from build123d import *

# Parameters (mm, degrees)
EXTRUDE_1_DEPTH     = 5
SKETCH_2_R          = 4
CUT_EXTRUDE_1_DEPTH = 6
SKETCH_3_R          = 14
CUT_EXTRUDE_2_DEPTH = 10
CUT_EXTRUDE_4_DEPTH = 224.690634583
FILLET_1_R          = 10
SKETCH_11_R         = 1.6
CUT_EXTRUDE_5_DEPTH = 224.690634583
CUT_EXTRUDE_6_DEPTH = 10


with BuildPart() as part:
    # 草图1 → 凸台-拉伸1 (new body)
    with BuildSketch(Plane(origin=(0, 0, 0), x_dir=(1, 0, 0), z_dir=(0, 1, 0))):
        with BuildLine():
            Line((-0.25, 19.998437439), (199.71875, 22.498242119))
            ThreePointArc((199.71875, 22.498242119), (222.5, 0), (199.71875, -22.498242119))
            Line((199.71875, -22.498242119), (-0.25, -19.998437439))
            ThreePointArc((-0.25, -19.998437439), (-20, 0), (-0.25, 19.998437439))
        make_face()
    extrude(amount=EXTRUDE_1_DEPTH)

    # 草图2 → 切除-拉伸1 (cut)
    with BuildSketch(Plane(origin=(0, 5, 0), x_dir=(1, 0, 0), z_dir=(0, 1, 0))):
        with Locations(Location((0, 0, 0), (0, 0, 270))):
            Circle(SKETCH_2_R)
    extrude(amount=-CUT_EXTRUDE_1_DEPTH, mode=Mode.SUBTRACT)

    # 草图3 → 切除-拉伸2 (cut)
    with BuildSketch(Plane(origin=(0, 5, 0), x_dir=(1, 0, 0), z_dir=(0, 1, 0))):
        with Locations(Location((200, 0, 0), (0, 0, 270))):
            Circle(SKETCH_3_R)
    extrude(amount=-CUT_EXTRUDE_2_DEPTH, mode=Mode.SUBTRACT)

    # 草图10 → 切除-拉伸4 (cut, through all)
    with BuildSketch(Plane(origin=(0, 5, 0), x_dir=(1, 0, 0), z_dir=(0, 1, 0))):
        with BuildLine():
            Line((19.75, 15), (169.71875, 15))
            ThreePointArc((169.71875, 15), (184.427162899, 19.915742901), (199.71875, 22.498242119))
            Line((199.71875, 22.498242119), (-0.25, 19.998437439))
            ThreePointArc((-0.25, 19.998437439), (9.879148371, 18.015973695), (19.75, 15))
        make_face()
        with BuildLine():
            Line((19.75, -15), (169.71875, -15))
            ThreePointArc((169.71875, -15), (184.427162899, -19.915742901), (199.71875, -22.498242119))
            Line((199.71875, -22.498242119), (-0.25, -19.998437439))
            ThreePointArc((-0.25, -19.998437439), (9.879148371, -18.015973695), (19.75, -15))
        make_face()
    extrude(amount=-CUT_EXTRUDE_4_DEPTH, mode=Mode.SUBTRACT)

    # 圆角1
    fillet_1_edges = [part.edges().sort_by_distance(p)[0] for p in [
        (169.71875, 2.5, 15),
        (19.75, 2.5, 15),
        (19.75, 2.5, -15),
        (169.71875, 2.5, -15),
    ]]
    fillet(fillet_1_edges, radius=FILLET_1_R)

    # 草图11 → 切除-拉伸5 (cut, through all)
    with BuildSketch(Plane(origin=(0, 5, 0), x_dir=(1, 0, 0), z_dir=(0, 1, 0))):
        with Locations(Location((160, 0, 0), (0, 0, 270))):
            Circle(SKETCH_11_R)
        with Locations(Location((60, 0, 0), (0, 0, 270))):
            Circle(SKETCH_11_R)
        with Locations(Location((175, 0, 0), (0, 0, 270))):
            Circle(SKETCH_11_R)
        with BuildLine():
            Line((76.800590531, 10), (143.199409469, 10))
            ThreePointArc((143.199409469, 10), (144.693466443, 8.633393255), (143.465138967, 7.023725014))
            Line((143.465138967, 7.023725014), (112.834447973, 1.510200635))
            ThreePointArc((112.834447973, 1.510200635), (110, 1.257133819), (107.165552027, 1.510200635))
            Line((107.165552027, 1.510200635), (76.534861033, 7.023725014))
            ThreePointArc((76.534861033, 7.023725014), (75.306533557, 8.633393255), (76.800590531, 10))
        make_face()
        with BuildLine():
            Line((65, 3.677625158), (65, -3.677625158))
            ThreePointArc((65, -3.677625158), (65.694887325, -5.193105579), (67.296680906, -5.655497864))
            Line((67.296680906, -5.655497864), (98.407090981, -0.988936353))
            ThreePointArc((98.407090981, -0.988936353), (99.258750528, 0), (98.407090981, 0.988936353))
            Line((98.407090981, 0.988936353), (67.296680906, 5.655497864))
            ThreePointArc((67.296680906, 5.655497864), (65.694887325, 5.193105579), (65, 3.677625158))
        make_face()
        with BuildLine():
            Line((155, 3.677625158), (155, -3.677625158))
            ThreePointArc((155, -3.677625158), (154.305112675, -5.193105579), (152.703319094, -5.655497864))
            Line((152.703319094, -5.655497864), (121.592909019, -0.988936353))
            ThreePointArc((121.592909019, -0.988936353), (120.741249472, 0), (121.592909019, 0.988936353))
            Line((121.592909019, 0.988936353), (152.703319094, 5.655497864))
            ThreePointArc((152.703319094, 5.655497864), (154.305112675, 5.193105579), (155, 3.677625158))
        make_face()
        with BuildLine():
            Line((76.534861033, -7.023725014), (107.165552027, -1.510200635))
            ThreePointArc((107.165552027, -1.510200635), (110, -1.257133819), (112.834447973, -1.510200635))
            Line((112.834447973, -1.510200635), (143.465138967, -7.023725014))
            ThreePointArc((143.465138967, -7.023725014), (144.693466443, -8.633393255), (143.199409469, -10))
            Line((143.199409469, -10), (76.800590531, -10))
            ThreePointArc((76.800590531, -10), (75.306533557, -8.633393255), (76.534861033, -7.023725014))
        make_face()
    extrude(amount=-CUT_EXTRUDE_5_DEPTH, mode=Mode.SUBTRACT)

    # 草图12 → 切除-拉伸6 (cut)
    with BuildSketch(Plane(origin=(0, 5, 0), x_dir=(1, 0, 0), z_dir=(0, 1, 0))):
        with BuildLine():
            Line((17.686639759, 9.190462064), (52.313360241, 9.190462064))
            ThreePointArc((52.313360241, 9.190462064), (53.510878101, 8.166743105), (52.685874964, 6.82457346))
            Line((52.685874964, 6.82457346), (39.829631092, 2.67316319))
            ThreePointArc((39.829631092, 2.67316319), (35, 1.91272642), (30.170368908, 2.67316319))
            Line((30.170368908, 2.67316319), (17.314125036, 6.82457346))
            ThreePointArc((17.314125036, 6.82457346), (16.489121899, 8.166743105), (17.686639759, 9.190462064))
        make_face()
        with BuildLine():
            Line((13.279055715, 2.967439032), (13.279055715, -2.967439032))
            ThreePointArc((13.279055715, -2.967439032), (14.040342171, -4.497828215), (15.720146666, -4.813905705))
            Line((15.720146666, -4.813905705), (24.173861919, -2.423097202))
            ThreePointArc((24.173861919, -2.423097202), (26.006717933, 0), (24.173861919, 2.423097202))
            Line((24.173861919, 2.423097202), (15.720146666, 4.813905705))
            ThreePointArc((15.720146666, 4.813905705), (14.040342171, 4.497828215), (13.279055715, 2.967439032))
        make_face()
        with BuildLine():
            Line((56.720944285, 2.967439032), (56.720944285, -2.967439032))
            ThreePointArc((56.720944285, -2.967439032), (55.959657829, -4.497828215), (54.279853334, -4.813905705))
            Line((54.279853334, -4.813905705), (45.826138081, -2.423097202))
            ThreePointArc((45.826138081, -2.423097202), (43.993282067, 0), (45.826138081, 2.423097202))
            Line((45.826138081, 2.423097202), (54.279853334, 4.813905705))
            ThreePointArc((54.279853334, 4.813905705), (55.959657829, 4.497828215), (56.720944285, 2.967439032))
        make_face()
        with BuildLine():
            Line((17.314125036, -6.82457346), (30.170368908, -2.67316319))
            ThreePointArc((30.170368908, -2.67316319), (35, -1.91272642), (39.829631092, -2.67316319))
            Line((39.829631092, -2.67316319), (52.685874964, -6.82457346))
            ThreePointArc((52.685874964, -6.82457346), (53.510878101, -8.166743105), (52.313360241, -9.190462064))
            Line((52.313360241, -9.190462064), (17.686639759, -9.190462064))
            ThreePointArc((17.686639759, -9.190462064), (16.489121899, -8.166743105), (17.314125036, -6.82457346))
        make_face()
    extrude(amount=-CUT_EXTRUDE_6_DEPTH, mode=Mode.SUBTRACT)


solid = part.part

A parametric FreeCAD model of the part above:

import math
import FreeCAD as App
import Part
import Sketcher

V = App.Vector
Q = App.Units.Quantity


def edges_at(feature, points):
    """Names of the edges that pass closest to the given points."""
    edges = feature.Shape.Edges
    near = lambda p: min(range(len(edges)), key=lambda i: edges[i].distToShape(Part.Vertex(*p))[0])
    return sorted({f"Edge{near(p) + 1}" for p in points})

doc = App.newDocument("Part")
body = doc.addObject("PartDesign::Body", "Body")

# Sketch on XZ plane
sketch1 = body.newObject("Sketcher::SketchObject", "Sketch")
sketch1.AttachmentSupport = (doc.getObject("XZ_Plane"), [""])
sketch1.MapMode = "FlatFace"
sketch1.addGeometry([
    Part.LineSegment(V(199.71875, -22.498242, 0), V(-0.25, -19.998437, 0)),
    Part.ArcOfCircle(Part.Circle(V(0, 0, 0), V(0, 0, 1), 20), math.radians(90.716216), math.radians(269.283784)),
    Part.LineSegment(V(-0.25, 19.998437, 0), V(199.71875, 22.498242, 0)),
    Part.ArcOfCircle(Part.Circle(V(200, 0, 0), V(0, 0, 1), 22.5), math.radians(-90.716216), math.radians(90.716216)),
], False)
sketch1.addConstraint([
    Sketcher.Constraint("Tangent", 0, 2, 1, 2),
    Sketcher.Constraint("Tangent", 1, 1, 2, 1),
    Sketcher.Constraint("Tangent", 2, 2, 3, 2),
    Sketcher.Constraint("Tangent", 3, 1, 0, 1),
    Sketcher.Constraint("Coincident", 1, 3, -1, 1),
    Sketcher.Constraint("PointOnObject", 3, 3, -1),
    Sketcher.Constraint("Radius", 1, Q("20 mm")),
    Sketcher.Constraint("Radius", 3, Q("22.5 mm")),
    Sketcher.Constraint("DistanceX", -1, 1, 3, 3, Q("200 mm")),
])
pad1 = body.newObject("PartDesign::Pad", "Pad")
pad1.Profile = sketch1
pad1.Length = 5
pad1.Reversed = True

# Sketch on XZ plane
sketch2 = body.newObject("Sketcher::SketchObject", "Sketch001")
sketch2.AttachmentSupport = (doc.getObject("XZ_Plane"), [""])
sketch2.MapMode = "FlatFace"
sketch2.AttachmentOffset = App.Placement(V(0, 0, -5), App.Rotation())
sketch2.addGeometry(Part.Circle(V(0, 0, 0), V(0, 0, 1), 4), False)
sketch2.addConstraint([
    Sketcher.Constraint("Coincident", 0, 3, -1, 1),
    Sketcher.Constraint("Diameter", 0, Q("8 mm")),
])
pocket1 = body.newObject("PartDesign::Pocket", "Pocket")
pocket1.Profile = sketch2
pocket1.Length = 6
pocket1.Reversed = True

# Sketch on XZ plane
sketch3 = body.newObject("Sketcher::SketchObject", "Sketch002")
sketch3.AttachmentSupport = (doc.getObject("XZ_Plane"), [""])
sketch3.MapMode = "FlatFace"
sketch3.AttachmentOffset = App.Placement(V(0, 0, -5), App.Rotation())
sketch3.addGeometry(Part.Circle(V(200, 0, 0), V(0, 0, 1), 14), False)
sketch3.addConstraint([
    Sketcher.Constraint("PointOnObject", 0, 3, -1),
    Sketcher.Constraint("Diameter", 0, Q("28 mm")),
    Sketcher.Constraint("DistanceX", -1, 1, 0, 3, Q("200 mm")),
])
pocket2 = body.newObject("PartDesign::Pocket", "Pocket001")
pocket2.Profile = sketch3
pocket2.Length = 10
pocket2.Reversed = True

# Sketch on XZ plane
sketch4 = body.newObject("Sketcher::SketchObject", "Sketch003")
sketch4.AttachmentSupport = (doc.getObject("XZ_Plane"), [""])
sketch4.MapMode = "FlatFace"
sketch4.AttachmentOffset = App.Placement(V(0, 0, -5), App.Rotation())
sketch4.addGeometry([
    Part.LineSegment(V(19.75, -15, 0), V(169.71875, -15, 0)),  # 0
    Part.ArcOfCircle(Part.Circle(V(208.675375, 77.099845, 0), V(0, 0, 1), 100), math.radians(-112.927513), math.radians(-95.138654)),  # 1
    Part.LineSegment(V(199.71875, -22.498242, 0), V(-0.25, -19.998437, 0)),  # 2
    Part.ArcOfCircle(Part.Circle(V(-14.36728, 79.000059, 0), V(0, 0, 1), 100), math.radians(-81.884283), math.radians(-70.051656)),  # 3
    Part.LineSegment(V(169.71875, 15, 0), V(19.75, 15, 0)),  # 4
    Part.ArcOfCircle(Part.Circle(V(-14.36728, -79.000059, 0), V(0, 0, 1), 100), math.radians(70.051656), math.radians(81.884283)),  # 5
    Part.LineSegment(V(-0.25, 19.998437, 0), V(199.71875, 22.498242, 0)),  # 6
    Part.ArcOfCircle(Part.Circle(V(208.675375, -77.099845, 0), V(0, 0, 1), 100), math.radians(95.138654), math.radians(112.927513)),  # 7
], False)
sketch4.addConstraint([
    Sketcher.Constraint("Coincident", 0, 2, 1, 1),
    Sketcher.Constraint("Coincident", 1, 2, 2, 1),
    Sketcher.Constraint("Coincident", 2, 2, 3, 1),
    Sketcher.Constraint("Coincident", 3, 2, 0, 1),
    Sketcher.Constraint("Coincident", 4, 2, 5, 1),
    Sketcher.Constraint("Coincident", 5, 2, 6, 1),
    Sketcher.Constraint("Coincident", 6, 2, 7, 1),
    Sketcher.Constraint("Coincident", 7, 2, 4, 1),
    Sketcher.Constraint("Horizontal", 0),
    Sketcher.Constraint("Horizontal", 4),
    Sketcher.Constraint("Equal", 1, 3),
    Sketcher.Constraint("Equal", 3, 5),
    Sketcher.Constraint("Equal", 5, 7),
    Sketcher.Constraint("Symmetric", 3, 3, 5, 3, -1),
    Sketcher.Constraint("Symmetric", 1, 3, 7, 3, -1),
    Sketcher.Constraint("Vertical", 3, 2, 4, 2),
    Sketcher.Constraint("Vertical", 2, 2, 5, 2),
    Sketcher.Constraint("Vertical", 1, 2, 6, 2),
    Sketcher.Constraint("Radius", 1, Q("100 mm")),
    Sketcher.Constraint("DistanceY", 0, 2, -1, 1, Q("15 mm")),
    Sketcher.Constraint("DistanceX", 0, 2, 1, 2, Q("30 mm")),
    Sketcher.Constraint("DistanceX", 2, 2, 3, 2, Q("20 mm")),
    Sketcher.Constraint("DistanceX", 2, 2, -1, 1, Q("0.25 mm")),
    Sketcher.Constraint("DistanceX", 0, 1, 0, 2, Q("149.96875 mm")),
    Sketcher.Constraint("DistanceY", 1, 2, 3, 3, Q("101.498302 mm")),
    Sketcher.Constraint("DistanceX", 3, 3, -1, 1, Q("14.36728 mm")),
])
pocket3 = body.newObject("PartDesign::Pocket", "Pocket002")
pocket3.Profile = sketch4
pocket3.Type = "ThroughAll"
pocket3.Reversed = True
doc.recompute()

fillet = body.newObject("PartDesign::Fillet", "Fillet")
fillet.Base = (pocket3, edges_at(pocket3, [
    (169.719, 2.5, 15),
    (19.75, 2.5, 15),
    (19.75, 2.5, -15),
    (169.719, 2.5, -15),
]))
fillet.Radius = 10

# Sketch on XZ plane
sketch5 = body.newObject("Sketcher::SketchObject", "Sketch004")
sketch5.AttachmentSupport = (doc.getObject("XZ_Plane"), [""])
sketch5.MapMode = "FlatFace"
sketch5.AttachmentOffset = App.Placement(V(0, 0, -5), App.Rotation())
sketch5.addGeometry([
    Part.Circle(V(160, 0, 0), V(0, 0, 1), 1.6),  # 0
    Part.Circle(V(60, 0, 0), V(0, 0, 1), 1.6),  # 1
    Part.Circle(V(175, 0, 0), V(0, 0, 1), 1.6),  # 2
    Part.LineSegment(V(143.199409, -10, 0), V(76.800591, -10, 0)),  # 3
    Part.ArcOfCircle(Part.Circle(V(76.800591, -8.5, 0), V(0, 0, 1), 1.5), math.radians(100.203974), math.radians(270)),  # 4
    Part.LineSegment(V(76.534861, -7.023725, 0), V(107.165552, -1.510201, 0)),  # 5
    Part.ArcOfCircle(Part.Circle(V(110, -17.257134, 0), V(0, 0, 1), 16), math.radians(79.796026), math.radians(100.203974)),  # 6
    Part.LineSegment(V(112.834448, -1.510201, 0), V(143.465139, -7.023725, 0)),  # 7
    Part.ArcOfCircle(Part.Circle(V(143.199409, -8.5, 0), V(0, 0, 1), 1.5), math.radians(-90), math.radians(79.796026)),  # 8
    Part.LineSegment(V(65, -3.677625, 0), V(65, 3.677625, 0)),  # 9
    Part.ArcOfCircle(Part.Circle(V(67, 3.677625, 0), V(0, 0, 1), 2), math.radians(81.469234), math.radians(180)),  # 10
    Part.LineSegment(V(67.296681, 5.655498, 0), V(98.407091, 0.988936, 0)),  # 11
    Part.ArcOfCircle(Part.Circle(V(98.258751, 0, 0), V(0, 0, 1), 1), math.radians(-81.469234), math.radians(81.469234)),  # 12
    Part.LineSegment(V(98.407091, -0.988936, 0), V(67.296681, -5.655498, 0)),  # 13
    Part.ArcOfCircle(Part.Circle(V(67, -3.677625, 0), V(0, 0, 1), 2), math.radians(180), math.radians(278.530766)),  # 14
    Part.LineSegment(V(155, 3.677625, 0), V(155, -3.677625, 0)),  # 15
    Part.ArcOfCircle(Part.Circle(V(153, -3.677625, 0), V(0, 0, 1), 2), math.radians(-98.530766), math.radians(0)),  # 16
    Part.LineSegment(V(152.703319, -5.655498, 0), V(121.592909, -0.988936, 0)),  # 17
    Part.ArcOfCircle(Part.Circle(V(121.741249, 0, 0), V(0, 0, 1), 1), math.radians(98.530766), math.radians(261.469234)),  # 18
    Part.LineSegment(V(121.592909, 0.988936, 0), V(152.703319, 5.655498, 0)),  # 19
    Part.ArcOfCircle(Part.Circle(V(153, 3.677625, 0), V(0, 0, 1), 2), math.radians(0), math.radians(98.530766)),  # 20
    Part.LineSegment(V(107.165552, 1.510201, 0), V(76.534861, 7.023725, 0)),  # 21
    Part.ArcOfCircle(Part.Circle(V(76.800591, 8.5, 0), V(0, 0, 1), 1.5), math.radians(90), math.radians(259.796026)),  # 22
    Part.LineSegment(V(76.800591, 10, 0), V(143.199409, 10, 0)),  # 23
    Part.ArcOfCircle(Part.Circle(V(143.199409, 8.5, 0), V(0, 0, 1), 1.5), math.radians(-79.796026), math.radians(90)),  # 24
    Part.LineSegment(V(143.465139, 7.023725, 0), V(112.834448, 1.510201, 0)),  # 25
    Part.ArcOfCircle(Part.Circle(V(110, 17.257134, 0), V(0, 0, 1), 16), math.radians(-100.203974), math.radians(-79.796026)),  # 26
], False)
sketch5.addConstraint([
    Sketcher.Constraint("Tangent", 3, 2, 4, 2),
    Sketcher.Constraint("Tangent", 4, 1, 5, 1),
    Sketcher.Constraint("Tangent", 5, 2, 6, 2),
    Sketcher.Constraint("Tangent", 6, 1, 7, 1),
    Sketcher.Constraint("Tangent", 7, 2, 8, 2),
    Sketcher.Constraint("Tangent", 8, 1, 3, 1),
    Sketcher.Constraint("Tangent", 9, 2, 10, 2),
    Sketcher.Constraint("Tangent", 10, 1, 11, 1),
    Sketcher.Constraint("Tangent", 11, 2, 12, 2),
    Sketcher.Constraint("Tangent", 12, 1, 13, 1),
    Sketcher.Constraint("Tangent", 13, 2, 14, 2),
    Sketcher.Constraint("Tangent", 14, 1, 9, 1),
    Sketcher.Constraint("Tangent", 15, 2, 16, 2),
    Sketcher.Constraint("Tangent", 16, 1, 17, 1),
    Sketcher.Constraint("Tangent", 17, 2, 18, 2),
    Sketcher.Constraint("Tangent", 18, 1, 19, 1),
    Sketcher.Constraint("Tangent", 19, 2, 20, 2),
    Sketcher.Constraint("Tangent", 20, 1, 15, 1),
    Sketcher.Constraint("Tangent", 21, 2, 22, 2),
    Sketcher.Constraint("Tangent", 22, 1, 23, 1),
    Sketcher.Constraint("Tangent", 23, 2, 24, 2),
    Sketcher.Constraint("Tangent", 24, 1, 25, 1),
    Sketcher.Constraint("Tangent", 25, 2, 26, 2),
    Sketcher.Constraint("Tangent", 26, 1, 21, 1),
    Sketcher.Constraint("Horizontal", 3),
    Sketcher.Constraint("Vertical", 9),
    Sketcher.Constraint("Vertical", 15),
    Sketcher.Constraint("Horizontal", 23),
    Sketcher.Constraint("Equal", 0, 1),
    Sketcher.Constraint("Equal", 1, 2),
    Sketcher.Constraint("Equal", 4, 8),
    Sketcher.Constraint("Equal", 10, 14),
    Sketcher.Constraint("Equal", 14, 16),
    Sketcher.Constraint("Equal", 12, 18),
    Sketcher.Constraint("Equal", 16, 20),
    Sketcher.Constraint("Equal", 8, 22),
    Sketcher.Constraint("Equal", 22, 24),
    Sketcher.Constraint("Equal", 6, 26),
    Sketcher.Constraint("Symmetric", 4, 3, 22, 3, -1),
    Sketcher.Constraint("Symmetric", 6, 3, 26, 3, -1),
    Sketcher.Constraint("Symmetric", 11, 2, 12, 1, -1),
    Sketcher.Constraint("Symmetric", 17, 2, 18, 1, -1),
    Sketcher.Constraint("PointOnObject", 0, 3, -1),
    Sketcher.Constraint("PointOnObject", 1, 3, -1),
    Sketcher.Constraint("PointOnObject", 2, 3, -1),
    Sketcher.Constraint("Parallel", 11, 17),
    Sketcher.Constraint("Parallel", 7, 21),
    Sketcher.Constraint("Parallel", 5, 25),
    Sketcher.Constraint("Horizontal", 14, 3, 16, 3),
    Sketcher.Constraint("Radius", 6, Q("16 mm")),
    Sketcher.Constraint("Radius", 10, Q("2 mm")),
    Sketcher.Constraint("Radius", 12, Q("1 mm")),
    Sketcher.Constraint("Diameter", 0, Q("3.2 mm")),
    Sketcher.Constraint("Radius", 4, Q("1.5 mm")),
    Sketcher.Constraint("DistanceX", -1, 1, 0, 3, Q("160 mm")),
    Sketcher.Constraint("DistanceX", -1, 1, 1, 3, Q("60 mm")),
    Sketcher.Constraint("DistanceX", -1, 1, 2, 3, Q("175 mm")),
    Sketcher.Constraint("DistanceX", -1, 1, 6, 3, Q("110 mm")),
    Sketcher.Constraint("DistanceX", -1, 1, 10, 3, Q("67 mm")),
    Sketcher.Constraint("DistanceX", -1, 1, 16, 3, Q("153 mm")),
    Sketcher.Constraint("DistanceY", 3, 2, -1, 1, Q("10 mm")),
    Sketcher.Constraint("DistanceX", 3, 2, 3, 1, Q("66.398819 mm")),
    Sketcher.Constraint("DistanceY", 9, 1, 9, 2, Q("7.35525 mm")),
    Sketcher.Constraint("DistanceY", 5, 2, -1, 1, Q("1.510201 mm")),
    Sketcher.Constraint("DistanceX", 12, 3, 18, 3, Q("23.482499 mm")),
])
pocket4 = body.newObject("PartDesign::Pocket", "Pocket003")
pocket4.Profile = sketch5
pocket4.Type = "ThroughAll"
pocket4.Reversed = True

# Sketch on XZ plane
sketch6 = body.newObject("Sketcher::SketchObject", "Sketch005")
sketch6.AttachmentSupport = (doc.getObject("XZ_Plane"), [""])
sketch6.MapMode = "FlatFace"
sketch6.AttachmentOffset = App.Placement(V(0, 0, -5), App.Rotation())
sketch6.addGeometry([
    Part.LineSegment(V(52.31336, -9.190462, 0), V(17.68664, -9.190462, 0)),  # 0
    Part.ArcOfCircle(Part.Circle(V(17.68664, -7.978191, 0), V(0, 0, 1), 1.212271), math.radians(107.895789), math.radians(270)),  # 1
    Part.LineSegment(V(17.314125, -6.824573, 0), V(30.170369, -2.673163, 0)),  # 2
    Part.ArcOfCircle(Part.Circle(V(35, -17.629747, 0), V(0, 0, 1), 15.71702), math.radians(72.104211), math.radians(107.895789)),  # 3
    Part.LineSegment(V(39.829631, -2.673163, 0), V(52.685875, -6.824573, 0)),  # 4
    Part.ArcOfCircle(Part.Circle(V(52.31336, -7.978191, 0), V(0, 0, 1), 1.212271), math.radians(-90), math.radians(72.104211)),  # 5
    Part.LineSegment(V(13.279056, -2.967439, 0), V(13.279056, 2.967439, 0)),  # 6
    Part.ArcOfCircle(Part.Circle(V(15.197945, 2.967439, 0), V(0, 0, 1), 1.918889), math.radians(74.208483), math.radians(180)),  # 7
    Part.LineSegment(V(15.720147, 4.813906, 0), V(24.173862, 2.423097, 0)),  # 8
    Part.ArcOfCircle(Part.Circle(V(23.488582, 0, 0), V(0, 0, 1), 2.518136), math.radians(-74.208483), math.radians(74.208483)),  # 9
    Part.LineSegment(V(24.173862, -2.423097, 0), V(15.720147, -4.813906, 0)),  # 10
    Part.ArcOfCircle(Part.Circle(V(15.197945, -2.967439, 0), V(0, 0, 1), 1.918889), math.radians(180), math.radians(285.791517)),  # 11
    Part.LineSegment(V(56.720944, 2.967439, 0), V(56.720944, -2.967439, 0)),  # 12
    Part.ArcOfCircle(Part.Circle(V(54.802055, -2.967439, 0), V(0, 0, 1), 1.918889), math.radians(-105.791517), math.radians(0)),  # 13
    Part.LineSegment(V(54.279853, -4.813906, 0), V(45.826138, -2.423097, 0)),  # 14
    Part.ArcOfCircle(Part.Circle(V(46.511418, 0, 0), V(0, 0, 1), 2.518136), math.radians(105.791517), math.radians(254.208483)),  # 15
    Part.LineSegment(V(45.826138, 2.423097, 0), V(54.279853, 4.813906, 0)),  # 16
    Part.ArcOfCircle(Part.Circle(V(54.802055, 2.967439, 0), V(0, 0, 1), 1.918889), math.radians(0), math.radians(105.791517)),  # 17
    Part.LineSegment(V(30.170369, 2.673163, 0), V(17.314125, 6.824573, 0)),  # 18
    Part.ArcOfCircle(Part.Circle(V(17.68664, 7.978191, 0), V(0, 0, 1), 1.212271), math.radians(90), math.radians(252.104211)),  # 19
    Part.LineSegment(V(17.68664, 9.190462, 0), V(52.31336, 9.190462, 0)),  # 20
    Part.ArcOfCircle(Part.Circle(V(52.31336, 7.978191, 0), V(0, 0, 1), 1.212271), math.radians(-72.104211), math.radians(90)),  # 21
    Part.LineSegment(V(52.685875, 6.824573, 0), V(39.829631, 2.673163, 0)),  # 22
    Part.ArcOfCircle(Part.Circle(V(35, 17.629747, 0), V(0, 0, 1), 15.71702), math.radians(-107.895789), math.radians(-72.104211)),  # 23
], False)
sketch6.addConstraint([
    Sketcher.Constraint("Tangent", 0, 2, 1, 2),
    Sketcher.Constraint("Tangent", 1, 1, 2, 1),
    Sketcher.Constraint("Tangent", 2, 2, 3, 2),
    Sketcher.Constraint("Tangent", 3, 1, 4, 1),
    Sketcher.Constraint("Tangent", 4, 2, 5, 2),
    Sketcher.Constraint("Tangent", 5, 1, 0, 1),
    Sketcher.Constraint("Tangent", 6, 2, 7, 2),
    Sketcher.Constraint("Tangent", 7, 1, 8, 1),
    Sketcher.Constraint("Tangent", 8, 2, 9, 2),
    Sketcher.Constraint("Tangent", 9, 1, 10, 1),
    Sketcher.Constraint("Tangent", 10, 2, 11, 2),
    Sketcher.Constraint("Tangent", 11, 1, 6, 1),
    Sketcher.Constraint("Tangent", 12, 2, 13, 2),
    Sketcher.Constraint("Tangent", 13, 1, 14, 1),
    Sketcher.Constraint("Tangent", 14, 2, 15, 2),
    Sketcher.Constraint("Tangent", 15, 1, 16, 1),
    Sketcher.Constraint("Tangent", 16, 2, 17, 2),
    Sketcher.Constraint("Tangent", 17, 1, 12, 1),
    Sketcher.Constraint("Tangent", 18, 2, 19, 2),
    Sketcher.Constraint("Tangent", 19, 1, 20, 1),
    Sketcher.Constraint("Tangent", 20, 2, 21, 2),
    Sketcher.Constraint("Tangent", 21, 1, 22, 1),
    Sketcher.Constraint("Tangent", 22, 2, 23, 2),
    Sketcher.Constraint("Tangent", 23, 1, 18, 1),
    Sketcher.Constraint("Horizontal", 0),
    Sketcher.Constraint("Vertical", 6),
    Sketcher.Constraint("Vertical", 12),
    Sketcher.Constraint("Horizontal", 20),
    Sketcher.Constraint("Equal", 1, 5),
    Sketcher.Constraint("Equal", 7, 11),
    Sketcher.Constraint("Equal", 11, 13),
    Sketcher.Constraint("Equal", 9, 15),
    Sketcher.Constraint("Equal", 13, 17),
    Sketcher.Constraint("Equal", 5, 19),
    Sketcher.Constraint("Equal", 19, 21),
    Sketcher.Constraint("Equal", 3, 23),
    Sketcher.Constraint("Symmetric", 1, 3, 19, 3, -1),
    Sketcher.Constraint("Symmetric", 3, 3, 23, 3, -1),
    Sketcher.Constraint("Symmetric", 8, 2, 9, 1, -1),
    Sketcher.Constraint("Symmetric", 14, 2, 15, 1, -1),
    Sketcher.Constraint("Parallel", 8, 14),
    Sketcher.Constraint("Parallel", 4, 18),
    Sketcher.Constraint("Parallel", 2, 22),
    Sketcher.Constraint("Horizontal", 11, 3, 13, 3),
    Sketcher.Constraint("DistanceX", -1, 1, 3, 3, Q("35 mm")),
    Sketcher.Constraint("Radius", 1, Q("1.212271 mm")),
    Sketcher.Constraint("Radius", 3, Q("15.71702 mm")),
    Sketcher.Constraint("Radius", 7, Q("1.918889 mm")),
    Sketcher.Constraint("Radius", 9, Q("2.518136 mm")),
    Sketcher.Constraint("DistanceX", 0, 2, 0, 1, Q("34.62672 mm")),
    Sketcher.Constraint("DistanceY", 6, 1, 6, 2, Q("5.934878 mm")),
    Sketcher.Constraint("DistanceY", 0, 2, 7, 3, Q("12.157901 mm")),
    Sketcher.Constraint("DistanceY", 0, 2, 2, 2, Q("6.517299 mm")),
    Sketcher.Constraint("DistanceX", -1, 1, 9, 3, Q("23.488582 mm")),
    Sketcher.Constraint("DistanceX", -1, 1, 15, 3, Q("46.511418 mm")),
    Sketcher.Constraint("DistanceX", -1, 1, 8, 2, Q("24.173862 mm")),
])
pocket5 = body.newObject("PartDesign::Pocket", "Pocket004")
pocket5.Profile = sketch6
pocket5.Length = 10
pocket5.Reversed = True

doc.recompute()
